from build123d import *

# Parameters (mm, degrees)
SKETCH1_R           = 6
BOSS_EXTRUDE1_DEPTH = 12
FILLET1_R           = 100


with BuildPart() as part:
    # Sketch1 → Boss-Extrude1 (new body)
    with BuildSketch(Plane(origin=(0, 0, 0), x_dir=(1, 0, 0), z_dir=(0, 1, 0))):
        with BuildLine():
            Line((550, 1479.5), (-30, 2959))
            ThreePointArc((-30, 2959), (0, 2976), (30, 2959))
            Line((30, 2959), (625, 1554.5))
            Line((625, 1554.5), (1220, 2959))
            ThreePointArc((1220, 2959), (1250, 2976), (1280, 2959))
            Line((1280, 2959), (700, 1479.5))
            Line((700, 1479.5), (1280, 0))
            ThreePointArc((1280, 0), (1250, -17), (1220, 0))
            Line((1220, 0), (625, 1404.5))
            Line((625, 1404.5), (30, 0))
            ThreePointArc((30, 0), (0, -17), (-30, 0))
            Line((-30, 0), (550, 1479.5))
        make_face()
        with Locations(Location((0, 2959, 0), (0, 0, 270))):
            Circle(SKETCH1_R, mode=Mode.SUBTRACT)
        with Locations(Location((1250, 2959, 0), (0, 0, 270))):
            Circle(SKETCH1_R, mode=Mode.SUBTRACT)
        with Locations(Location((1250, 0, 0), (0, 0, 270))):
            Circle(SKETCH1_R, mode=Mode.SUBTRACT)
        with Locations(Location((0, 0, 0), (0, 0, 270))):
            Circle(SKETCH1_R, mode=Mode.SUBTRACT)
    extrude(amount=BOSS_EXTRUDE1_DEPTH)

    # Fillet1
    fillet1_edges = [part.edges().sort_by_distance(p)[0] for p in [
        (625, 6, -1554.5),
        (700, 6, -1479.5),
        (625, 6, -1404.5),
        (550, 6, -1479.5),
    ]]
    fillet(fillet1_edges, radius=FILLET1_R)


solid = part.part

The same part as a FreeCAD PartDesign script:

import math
import FreeCAD as App
import Part
import Sketcher


def edges_at(feature, points):
    """Names of the edges that pass closest to the given points."""
    edges = feature.Shape.Edges
    near = lambda p: min(range(len(edges)), key=lambda i: edges[i].distToShape(Part.Vertex(*p))[0])
    return sorted({f"Edge{near(p) + 1}" for p in points})

doc = App.newDocument("Part")
body = doc.addObject("PartDesign::Body", "Body")

# Sketch on XZ plane
sketch1 = doc.addObject("Sketcher::SketchObject", "Sketch")
body.addObject(sketch1)
sketch1.AttachmentSupport = (doc.XZ_Plane, [""])
sketch1.MapMode = "FlatFace"
sketch1.addGeometry([
    Part.LineSegment(App.Vector(-30, -2959, 0), App.Vector(550, -1479.5, 0)),  # 0
    Part.LineSegment(App.Vector(550, -1479.5, 0), App.Vector(-30, 0, 0)),  # 1
    Part.ArcOfCircle(Part.Circle(App.Vector(0, -17.970588, 0), App.Vector(0, 0, 1), 34.970588), math.radians(30.922435), math.radians(149.077565)),  # 2
    Part.LineSegment(App.Vector(30, 0, 0), App.Vector(625, -1404.5, 0)),  # 3
    Part.LineSegment(App.Vector(625, -1404.5, 0), App.Vector(1220, 0, 0)),  # 4
    Part.ArcOfCircle(Part.Circle(App.Vector(1250, -17.970588, 0), App.Vector(0, 0, 1), 34.970588), math.radians(30.922435), math.radians(149.077565)),  # 5
    Part.LineSegment(App.Vector(1280, 0, 0), App.Vector(700, -1479.5, 0)),  # 6
    Part.LineSegment(App.Vector(700, -1479.5, 0), App.Vector(1280, -2959, 0)),  # 7
    Part.ArcOfCircle(Part.Circle(App.Vector(1250, -2941.029412, 0), App.Vector(0, 0, 1), 34.970588), math.radians(-149.077565), math.radians(-30.922435)),  # 8
    Part.LineSegment(App.Vector(1220, -2959, 0), App.Vector(625, -1554.5, 0)),  # 9
    Part.LineSegment(App.Vector(625, -1554.5, 0), App.Vector(30, -2959, 0)),  # 10
    Part.ArcOfCircle(Part.Circle(App.Vector(0, -2941.029412, 0), App.Vector(0, 0, 1), 34.970588), math.radians(-149.077565), math.radians(-30.922435)),  # 11
    Part.Circle(App.Vector(1250, 0, 0), App.Vector(0, 0, 1), 6),  # 12
    Part.Circle(App.Vector(0, 0, 0), App.Vector(0, 0, 1), 6),  # 13
    Part.Circle(App.Vector(1250, -2959, 0), App.Vector(0, 0, 1), 6),  # 14
    Part.Circle(App.Vector(0, -2959, 0), App.Vector(0, 0, 1), 6),  # 15
], False)
sketch1.addConstraint([
    Sketcher.Constraint("Coincident", 0, 2, 1, 1),
    Sketcher.Constraint("Coincident", 1, 2, 2, 2),
    Sketcher.Constraint("Coincident", 2, 1, 3, 1),
    Sketcher.Constraint("Coincident", 3, 2, 4, 1),
    Sketcher.Constraint("Coincident", 4, 2, 5, 2),
    Sketcher.Constraint("Coincident", 5, 1, 6, 1),
    Sketcher.Constraint("Coincident", 6, 2, 7, 1),
    Sketcher.Constraint("Coincident", 7, 2, 8, 2),
    Sketcher.Constraint("Coincident", 8, 1, 9, 1),
    Sketcher.Constraint("Coincident", 9, 2, 10, 1),
    Sketcher.Constraint("Coincident", 10, 2, 11, 2),
    Sketcher.Constraint("Coincident", 11, 1, 0, 1),
    Sketcher.Constraint("Coincident", 13, 3, -1, 1),
    Sketcher.Constraint("Equal", 2, 5),
    Sketcher.Constraint("Equal", 5, 8),
    Sketcher.Constraint("Equal", 8, 11),
    Sketcher.Constraint("Equal", 12, 13),
    Sketcher.Constraint("Equal", 13, 14),
    Sketcher.Constraint("Equal", 14, 15),
    Sketcher.Constraint("Symmetric", 1, 2, 2, 1, -1, 1),
    Sketcher.Constraint("Symmetric", 10, 2, 11, 1, -2),
    Sketcher.Constraint("PointOnObject", 2, 3, -2),
    Sketcher.Constraint("PointOnObject", 12, 3, -1),
    Sketcher.Constraint("PointOnObject", 15, 3, -2),
    Sketcher.Constraint("PointOnObject", 4, 2, -1),
    Sketcher.Constraint("PointOnObject", 5, 1, -1),
    Sketcher.Constraint("Parallel", 0, 6),
    Sketcher.Constraint("Parallel", 1, 7),
    Sketcher.Constraint("Parallel", 3, 9),
    Sketcher.Constraint("Parallel", 4, 10),
    Sketcher.Constraint("Horizontal", 2, 3, 5, 3),
    Sketcher.Constraint("Horizontal", 8, 3, 11, 3),
    Sketcher.Constraint("Horizontal", 14, 3, 15, 3),
    Sketcher.Constraint("Horizontal", 0, 2, 6, 2),
    Sketcher.Constraint("Horizontal", 15, 3, 7, 2),
    Sketcher.Constraint("Horizontal", 7, 2, 8, 1),
    Sketcher.Constraint("Horizontal", 8, 1, 10, 2),
    Sketcher.Constraint("Vertical", 5, 3, 8, 3),
    Sketcher.Constraint("Vertical", 8, 3, 12, 3),
    Sketcher.Constraint("Vertical", 12, 3, 14, 3),
    Sketcher.Constraint("Vertical", 5, 1, 7, 2),
    Sketcher.Constraint("Vertical", 3, 2, 9, 2),
    Sketcher.Constraint("Diameter", 12, 12.0),
    Sketcher.Constraint("DistanceX", -1, 1, 5, 3, 1250.0),
    Sketcher.Constraint("DistanceY", 14, 3, -1, 1, 2959.0),
    Sketcher.Constraint("DistanceX", -1, 1, 0, 2, 550.0),
    Sketcher.Constraint("DistanceX", 1, 2, -1, 1, 30.0),
    Sketcher.Constraint("DistanceY", 0, 2, 3, 2, 75.0),
    Sketcher.Constraint("Radius", 2, 34.970588),
])
pad1 = doc.addObject("PartDesign::Pad", "Pad")
body.addObject(pad1)
pad1.Profile = sketch1
pad1.Length = 12
pad1.Reversed = True
doc.recompute()

fillet = doc.addObject("PartDesign::Fillet", "Fillet")
body.addObject(fillet)
fillet.Base = (pad1, edges_at(pad1, [
    (625, 6, -1554.5),
    (700, 6, -1479.5),
    (625, 6, -1404.5),
    (550, 6, -1479.5),
]))
fillet.Radius = 100

doc.recompute()
